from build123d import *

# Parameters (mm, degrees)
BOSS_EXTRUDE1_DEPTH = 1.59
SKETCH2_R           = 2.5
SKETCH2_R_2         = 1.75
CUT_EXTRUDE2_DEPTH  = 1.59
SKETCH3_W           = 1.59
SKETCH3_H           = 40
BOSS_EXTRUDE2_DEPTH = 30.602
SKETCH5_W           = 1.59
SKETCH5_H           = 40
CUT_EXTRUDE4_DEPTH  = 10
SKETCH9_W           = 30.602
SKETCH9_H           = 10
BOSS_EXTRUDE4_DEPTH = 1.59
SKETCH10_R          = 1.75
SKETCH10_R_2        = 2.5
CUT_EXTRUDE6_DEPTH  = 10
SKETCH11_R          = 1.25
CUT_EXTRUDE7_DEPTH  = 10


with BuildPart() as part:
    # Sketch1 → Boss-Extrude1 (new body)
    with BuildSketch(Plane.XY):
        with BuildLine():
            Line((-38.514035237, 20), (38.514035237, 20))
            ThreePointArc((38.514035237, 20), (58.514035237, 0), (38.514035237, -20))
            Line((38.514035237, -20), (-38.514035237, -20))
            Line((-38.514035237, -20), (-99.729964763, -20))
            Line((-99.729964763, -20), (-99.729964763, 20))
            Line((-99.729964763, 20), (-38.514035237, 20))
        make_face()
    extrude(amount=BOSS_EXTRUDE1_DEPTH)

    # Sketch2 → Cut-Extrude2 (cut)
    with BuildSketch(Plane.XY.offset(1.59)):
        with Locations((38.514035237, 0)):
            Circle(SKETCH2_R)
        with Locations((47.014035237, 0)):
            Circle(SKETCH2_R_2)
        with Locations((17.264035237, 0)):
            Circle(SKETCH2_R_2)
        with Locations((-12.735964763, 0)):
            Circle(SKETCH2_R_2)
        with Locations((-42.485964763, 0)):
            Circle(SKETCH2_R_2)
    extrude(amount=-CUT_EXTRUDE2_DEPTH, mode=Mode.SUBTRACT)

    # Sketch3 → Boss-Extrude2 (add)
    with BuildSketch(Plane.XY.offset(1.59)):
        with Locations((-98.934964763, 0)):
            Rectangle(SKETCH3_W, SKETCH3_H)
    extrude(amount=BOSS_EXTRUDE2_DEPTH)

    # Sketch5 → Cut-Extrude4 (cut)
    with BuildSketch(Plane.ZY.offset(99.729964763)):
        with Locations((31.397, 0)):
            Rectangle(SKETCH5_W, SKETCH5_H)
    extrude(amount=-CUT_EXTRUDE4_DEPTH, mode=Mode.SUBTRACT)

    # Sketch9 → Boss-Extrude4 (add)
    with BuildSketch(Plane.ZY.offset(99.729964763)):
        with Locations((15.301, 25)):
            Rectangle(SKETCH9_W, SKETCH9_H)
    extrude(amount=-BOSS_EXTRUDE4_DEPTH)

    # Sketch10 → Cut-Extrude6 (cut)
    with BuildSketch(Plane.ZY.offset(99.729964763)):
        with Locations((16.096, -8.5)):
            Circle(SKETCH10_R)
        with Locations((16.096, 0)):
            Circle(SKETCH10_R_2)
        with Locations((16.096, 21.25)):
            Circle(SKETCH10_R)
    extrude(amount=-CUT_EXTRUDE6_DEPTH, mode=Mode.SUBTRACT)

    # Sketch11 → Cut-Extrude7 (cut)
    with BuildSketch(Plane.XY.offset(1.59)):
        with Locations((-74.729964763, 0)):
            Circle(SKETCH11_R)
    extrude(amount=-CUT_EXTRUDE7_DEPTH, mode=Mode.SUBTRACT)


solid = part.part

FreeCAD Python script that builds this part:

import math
import FreeCAD as App
import Part
import Sketcher

V = App.Vector
Q = App.Units.Quantity

doc = App.newDocument("Part")
body = doc.addObject("PartDesign::Body", "Body")

# Sketch on XY plane
sketch1 = doc.addObject("Sketcher::SketchObject", "Sketch")
body.addObject(sketch1)
sketch1.AttachmentSupport = (doc.XY_Plane, [""])
sketch1.MapMode = "FlatFace"
sketch1.addGeometry([
    Part.ArcOfCircle(Part.Circle(V(38.514035, 0, 0), V(0, 0, 1), 20), math.radians(-90), math.radians(90)),
    Part.LineSegment(V(38.514035, 20, 0), V(-99.729965, 20, 0)),
    Part.LineSegment(V(-99.729965, 20, 0), V(-99.729965, -20, 0)),
    Part.LineSegment(V(-99.729965, -20, 0), V(38.514035, -20, 0)),
], False)
sketch1.addConstraint([
    Sketcher.Constraint("Tangent", 0, 2, 1, 1),
    Sketcher.Constraint("Coincident", 1, 2, 2, 1),
    Sketcher.Constraint("Coincident", 2, 2, 3, 1),
    Sketcher.Constraint("Tangent", 3, 2, 0, 1),
    Sketcher.Constraint("Horizontal", 1),
    Sketcher.Constraint("Vertical", 2),
    Sketcher.Constraint("Horizontal", 3),
    Sketcher.Constraint("PointOnObject", 0, 3, -1),
    Sketcher.Constraint("Radius", 0, Q("20 mm")),
    Sketcher.Constraint("DistanceX", 1, 2, 1, 1, Q("138.244 mm")),
    Sketcher.Constraint("DistanceX", -1, 1, 0, 3, Q("38.514035 mm")),
])
pad1 = doc.addObject("PartDesign::Pad", "Pad")
body.addObject(pad1)
pad1.Profile = sketch1
pad1.Length = 1.59

# Sketch on XY plane
sketch2 = doc.addObject("Sketcher::SketchObject", "Sketch001")
body.addObject(sketch2)
sketch2.AttachmentSupport = (doc.XY_Plane, [""])
sketch2.MapMode = "FlatFace"
sketch2.AttachmentOffset = App.Placement(V(0, 0, 1.59), App.Rotation())
sketch2.addGeometry([
    Part.Circle(V(38.514035, 0, 0), V(0, 0, 1), 2.5),  # 0
    Part.Circle(V(47.014035, 0, 0), V(0, 0, 1), 1.75),  # 1
    Part.Circle(V(17.264035, 0, 0), V(0, 0, 1), 1.75),  # 2
    Part.Circle(V(-12.735965, 0, 0), V(0, 0, 1), 1.75),  # 3
    Part.Circle(V(-42.485965, 0, 0), V(0, 0, 1), 1.75),  # 4
], False)
sketch2.addConstraint([
    Sketcher.Constraint("Equal", 1, 2),
    Sketcher.Constraint("Equal", 2, 3),
    Sketcher.Constraint("Equal", 3, 4),
    Sketcher.Constraint("PointOnObject", 0, 3, -1),
    Sketcher.Constraint("PointOnObject", 1, 3, -1),
    Sketcher.Constraint("PointOnObject", 2, 3, -1),
    Sketcher.Constraint("PointOnObject", 3, 3, -1),
    Sketcher.Constraint("PointOnObject", 4, 3, -1),
    Sketcher.Constraint("Diameter", 0, Q("5 mm")),
    Sketcher.Constraint("Diameter", 1, Q("3.5 mm")),
    Sketcher.Constraint("DistanceX", 3, 3, 2, 3, Q("30 mm")),
    Sketcher.Constraint("DistanceX", 4, 3, 0, 3, Q("81 mm")),
    Sketcher.Constraint("DistanceX", 0, 3, 1, 3, Q("8.5 mm")),
    Sketcher.Constraint("DistanceX", 2, 3, 0, 3, Q("21.25 mm")),
    Sketcher.Constraint("DistanceX", -1, 1, 0, 3, Q("38.514035 mm")),
])
pocket1 = doc.addObject("PartDesign::Pocket", "Pocket")
body.addObject(pocket1)
pocket1.Profile = sketch2
pocket1.Length = 1.59

# Sketch on XY plane
sketch3 = doc.addObject("Sketcher::SketchObject", "Sketch002")
body.addObject(sketch3)
sketch3.AttachmentSupport = (doc.XY_Plane, [""])
sketch3.MapMode = "FlatFace"
sketch3.AttachmentOffset = App.Placement(V(0, 0, 1.59), App.Rotation())
sketch3.addGeometry([
    Part.LineSegment(V(-99.729965, 20, 0), V(-99.729965, -20, 0)),
    Part.LineSegment(V(-99.729965, -20, 0), V(-98.139965, -20, 0)),
    Part.LineSegment(V(-98.139965, -20, 0), V(-98.139965, 20, 0)),
    Part.LineSegment(V(-98.139965, 20, 0), V(-99.729965, 20, 0)),
], False)
sketch3.addConstraint([
    Sketcher.Constraint("Coincident", 0, 2, 1, 1),
    Sketcher.Constraint("Coincident", 1, 2, 2, 1),
    Sketcher.Constraint("Coincident", 2, 2, 3, 1),
    Sketcher.Constraint("Coincident", 3, 2, 0, 1),
    Sketcher.Constraint("Vertical", 0),
    Sketcher.Constraint("Horizontal", 1),
    Sketcher.Constraint("Vertical", 2),
    Sketcher.Constraint("Horizontal", 3),
    Sketcher.Constraint("DistanceY", 0, 2, 0, 1, Q("40 mm")),
    Sketcher.Constraint("DistanceY", 0, 2, -1, 1, Q("20 mm")),
    Sketcher.Constraint("DistanceX", 1, 1, 1, 2, Q("1.59 mm")),
    Sketcher.Constraint("DistanceX", 0, 2, -1, 1, Q("99.729965 mm")),
])
pad2 = doc.addObject("PartDesign::Pad", "Pad001")
body.addObject(pad2)
pad2.Profile = sketch3
pad2.Length = 30.602

# Sketch on YZ plane
sketch4 = doc.addObject("Sketcher::SketchObject", "Sketch003")
body.addObject(sketch4)
sketch4.AttachmentSupport = (doc.YZ_Plane, [""])
sketch4.MapMode = "FlatFace"
sketch4.AttachmentOffset = App.Placement(V(0, 0, -99.729965), App.Rotation())
sketch4.addGeometry([
    Part.LineSegment(V(20, 30.602, 0), V(-20, 30.602, 0)),
    Part.LineSegment(V(-20, 30.602, 0), V(-20, 32.192, 0)),
    Part.LineSegment(V(-20, 32.192, 0), V(20, 32.192, 0)),
    Part.LineSegment(V(20, 32.192, 0), V(20, 30.602, 0)),
], False)
sketch4.addConstraint([
    Sketcher.Constraint("Coincident", 0, 2, 1, 1),
    Sketcher.Constraint("Coincident", 1, 2, 2, 1),
    Sketcher.Constraint("Coincident", 2, 2, 3, 1),
    Sketcher.Constraint("Coincident", 3, 2, 0, 1),
    Sketcher.Constraint("Horizontal", 0),
    Sketcher.Constraint("Vertical", 1),
    Sketcher.Constraint("Horizontal", 2),
    Sketcher.Constraint("Vertical", 3),
    Sketcher.Constraint("DistanceX", 0, 2, 0, 1, Q("40 mm")),
    Sketcher.Constraint("DistanceX", 0, 2, -1, 1, Q("20 mm")),
    Sketcher.Constraint("DistanceY", 1, 1, 1, 2, Q("1.59 mm")),
    Sketcher.Constraint("DistanceY", -1, 1, 0, 2, Q("30.602 mm")),
])
pocket2 = doc.addObject("PartDesign::Pocket", "Pocket001")
body.addObject(pocket2)
pocket2.Profile = sketch4
pocket2.Length = 10
pocket2.Reversed = True

# Sketch on YZ plane
sketch5 = doc.addObject("Sketcher::SketchObject", "Sketch004")
body.addObject(sketch5)
sketch5.AttachmentSupport = (doc.YZ_Plane, [""])
sketch5.MapMode = "FlatFace"
sketch5.AttachmentOffset = App.Placement(V(0, 0, -99.729965), App.Rotation())
sketch5.addGeometry([
    Part.LineSegment(V(30, 0, 0), V(20, 0, 0)),
    Part.LineSegment(V(20, 0, 0), V(20, 30.602, 0)),
    Part.LineSegment(V(20, 30.602, 0), V(30, 30.602, 0)),
    Part.LineSegment(V(30, 30.602, 0), V(30, 0, 0)),
], False)
sketch5.addConstraint([
    Sketcher.Constraint("Coincident", 0, 2, 1, 1),
    Sketcher.Constraint("Coincident", 1, 2, 2, 1),
    Sketcher.Constraint("Coincident", 2, 2, 3, 1),
    Sketcher.Constraint("Coincident", 3, 2, 0, 1),
    Sketcher.Constraint("Horizontal", 0),
    Sketcher.Constraint("Vertical", 1),
    Sketcher.Constraint("Horizontal", 2),
    Sketcher.Constraint("Vertical", 3),
    Sketcher.Constraint("PointOnObject", 0, 2, -1),
    Sketcher.Constraint("DistanceX", 0, 2, 0, 1, Q("10 mm")),
    Sketcher.Constraint("DistanceX", -1, 1, 0, 2, Q("20 mm")),
    Sketcher.Constraint("DistanceY", 1, 1, 1, 2, Q("30.602 mm")),
])
pad3 = doc.addObject("PartDesign::Pad", "Pad002")
body.addObject(pad3)
pad3.Profile = sketch5
pad3.Length = 1.59

# Sketch on YZ plane
sketch6 = doc.addObject("Sketcher::SketchObject", "Sketch005")
body.addObject(sketch6)
sketch6.AttachmentSupport = (doc.YZ_Plane, [""])
sketch6.MapMode = "FlatFace"
sketch6.AttachmentOffset = App.Placement(V(0, 0, -99.729965), App.Rotation())
sketch6.addGeometry([
    Part.Circle(V(-8.5, 16.096, 0), V(0, 0, 1), 1.75),
    Part.Circle(V(0, 16.096, 0), V(0, 0, 1), 2.5),
    Part.Circle(V(21.25, 16.096, 0), V(0, 0, 1), 1.75),
], False)
sketch6.addConstraint([
    Sketcher.Constraint("Equal", 0, 2),
    Sketcher.Constraint("PointOnObject", 1, 3, -2),
    Sketcher.Constraint("Horizontal", 0, 3, 1, 3),
    Sketcher.Constraint("Horizontal", 1, 3, 2, 3),
    Sketcher.Constraint("Diameter", 1, Q("5 mm")),
    Sketcher.Constraint("Diameter", 0, Q("3.5 mm")),
    Sketcher.Constraint("DistanceX", 0, 3, -1, 1, Q("8.5 mm")),
    Sketcher.Constraint("DistanceX", -1, 1, 2, 3, Q("21.25 mm")),
    Sketcher.Constraint("DistanceY", -1, 1, 0, 3, Q("16.096 mm")),
])
pocket3 = doc.addObject("PartDesign::Pocket", "Pocket002")
body.addObject(pocket3)
pocket3.Profile = sketch6
pocket3.Length = 10
pocket3.Reversed = True

# Sketch on XY plane
sketch7 = doc.addObject("Sketcher::SketchObject", "Sketch006")
body.addObject(sketch7)
sketch7.AttachmentSupport = (doc.XY_Plane, [""])
sketch7.MapMode = "FlatFace"
sketch7.AttachmentOffset = App.Placement(V(0, 0, 1.59), App.Rotation())
sketch7.addGeometry(Part.Circle(V(-74.729965, 0, 0), V(0, 0, 1), 1.25), False)
sketch7.addConstraint([
    Sketcher.Constraint("PointOnObject", 0, 3, -1),
    Sketcher.Constraint("Diameter", 0, Q("2.5 mm")),
    Sketcher.Constraint("DistanceX", 0, 3, -1, 1, Q("74.729965 mm")),
])
pocket4 = doc.addObject("PartDesign::Pocket", "Pocket003")
body.addObject(pocket4)
pocket4.Profile = sketch7
pocket4.Length = 10

doc.recompute()
